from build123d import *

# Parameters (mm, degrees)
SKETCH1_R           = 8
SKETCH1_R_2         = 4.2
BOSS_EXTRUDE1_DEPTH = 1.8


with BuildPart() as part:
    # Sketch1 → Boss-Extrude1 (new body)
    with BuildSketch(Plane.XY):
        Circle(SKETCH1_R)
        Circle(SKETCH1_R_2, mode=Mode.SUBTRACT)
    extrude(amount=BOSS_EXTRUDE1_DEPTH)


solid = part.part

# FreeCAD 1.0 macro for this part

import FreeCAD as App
import Part
import Sketcher
from FreeCAD import Vector

doc = App.newDocument("Part")
params = doc.addObject("Spreadsheet::Sheet", "Params")
for row, (alias, value) in enumerate([
    ("sketch1_diameter", "16 mm"),
    ("sketch1_diameter2", "8.4 mm"),
    ("pad1_length", "1.8 mm"),
], start=1):
    params.set(f"A{row}", alias)
    params.set(f"B{row}", "=" + value)
    params.setAlias(f"B{row}", alias)

body = doc.addObject("PartDesign::Body", "Body")

# Sketch on XY plane
sketch1 = body.newObject("Sketcher::SketchObject", "Sketch")
sketch1.AttachmentSupport = (doc.getObject("XY_Plane"), [""])
sketch1.MapMode = "FlatFace"
sketch1.addGeometry([
    Part.Circle(Vector(0, 0, 0), Vector(0, 0, 1), 8),
    Part.Circle(Vector(0, 0, 0), Vector(0, 0, 1), 4.2),
], False)
sketch1.addConstraint([
    Sketcher.Constraint("Coincident", 0, 3, -1, 1),
    Sketcher.Constraint("Coincident", 1, 3, -1, 1),
    Sketcher.Constraint("Diameter", 0, 16.0),
    Sketcher.Constraint("Diameter", 1, 8.4),
])
sketch1.setExpression("Constraints[2]", "Params.sketch1_diameter")
sketch1.setExpression("Constraints[3]", "Params.sketch1_diameter2")
pad1 = body.newObject("PartDesign::Pad", "Pad")
pad1.Profile = sketch1
pad1.setExpression("Length", "Params.pad1_length")

doc.recompute()
